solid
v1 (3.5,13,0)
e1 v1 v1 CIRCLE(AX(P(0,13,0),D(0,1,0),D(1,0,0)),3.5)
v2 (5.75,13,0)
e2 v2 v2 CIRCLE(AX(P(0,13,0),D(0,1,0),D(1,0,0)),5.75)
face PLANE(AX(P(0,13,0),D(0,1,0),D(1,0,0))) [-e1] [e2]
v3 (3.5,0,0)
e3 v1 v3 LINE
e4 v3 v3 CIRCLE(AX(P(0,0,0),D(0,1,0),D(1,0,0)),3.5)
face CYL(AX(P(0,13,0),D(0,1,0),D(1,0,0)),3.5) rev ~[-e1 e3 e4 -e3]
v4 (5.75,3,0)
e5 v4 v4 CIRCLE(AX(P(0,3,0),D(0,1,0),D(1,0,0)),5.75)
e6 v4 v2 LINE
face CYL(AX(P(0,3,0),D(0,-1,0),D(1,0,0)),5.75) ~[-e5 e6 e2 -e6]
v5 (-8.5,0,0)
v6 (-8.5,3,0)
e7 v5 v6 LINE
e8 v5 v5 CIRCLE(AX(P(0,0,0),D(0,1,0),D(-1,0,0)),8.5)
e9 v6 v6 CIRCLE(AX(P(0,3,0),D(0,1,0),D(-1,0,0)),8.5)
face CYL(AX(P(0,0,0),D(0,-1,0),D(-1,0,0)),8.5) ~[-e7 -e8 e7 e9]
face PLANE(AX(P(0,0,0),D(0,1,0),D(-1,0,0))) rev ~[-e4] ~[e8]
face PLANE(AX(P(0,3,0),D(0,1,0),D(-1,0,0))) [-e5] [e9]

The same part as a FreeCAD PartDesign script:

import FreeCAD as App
import Part
import Sketcher
Q = App.Units.Quantity

doc = App.newDocument("Part")
body = doc.addObject("PartDesign::Body", "Body")

# Sketch on XZ plane
sketch1 = doc.addObject("Sketcher::SketchObject", "Sketch")
body.addObject(sketch1)
sketch1.AttachmentSupport = (doc.XZ_Plane, [""])
sketch1.MapMode = "FlatFace"
sketch1.addGeometry(Part.Circle(App.Vector(0, 0, 0), App.Vector(0, 0, 1), 8), False)
sketch1.addConstraint([
    Sketcher.Constraint("Coincident", 0, 3, -1, 1),
    Sketcher.Constraint("Diameter", 0, Q("17 mm")),
])
pad1 = doc.addObject("PartDesign::Pad", "Pad")
body.addObject(pad1)
pad1.Profile = sketch1
pad1.Length = 3
pad1.Reversed = True

# Sketch on XZ plane
sketch2 = doc.addObject("Sketcher::SketchObject", "Sketch001")
body.addObject(sketch2)
sketch2.AttachmentSupport = (doc.XZ_Plane, [""])
sketch2.MapMode = "FlatFace"
sketch2.AttachmentOffset = App.Placement(App.Vector(0, 0, -3), App.Rotation())
sketch2.addGeometry(Part.Circle(App.Vector(0, 0, 0), App.Vector(0, 0, 1), 6), False)
sketch2.addConstraint([
    Sketcher.Constraint("Coincident", 0, 3, -1, 1),
    Sketcher.Constraint("Diameter", 0, Q("11.5 mm")),
])
pad2 = doc.addObject("PartDesign::Pad", "Pad001")
body.addObject(pad2)
pad2.Profile = sketch2
pad2.Length = 10
pad2.Reversed = True

# Sketch on XZ plane
sketch3 = doc.addObject("Sketcher::SketchObject", "Sketch002")
body.addObject(sketch3)
sketch3.AttachmentSupport = (doc.XZ_Plane, [""])
sketch3.MapMode = "FlatFace"
sketch3.AttachmentOffset = App.Placement(App.Vector(0, 0, -13), App.Rotation())
sketch3.addGeometry(Part.Circle(App.Vector(0, 0, 0), App.Vector(0, 0, 1), 3.5), False)
sketch3.addConstraint([
    Sketcher.Constraint("Coincident", 0, 3, -1, 1),
    Sketcher.Constraint("Diameter", 0, Q("7 mm")),
])
pocket1 = doc.addObject("PartDesign::Pocket", "Pocket")
body.addObject(pocket1)
pocket1.Profile = sketch3
pocket1.Length = 19.25
pocket1.Reversed = True

doc.recompute()
